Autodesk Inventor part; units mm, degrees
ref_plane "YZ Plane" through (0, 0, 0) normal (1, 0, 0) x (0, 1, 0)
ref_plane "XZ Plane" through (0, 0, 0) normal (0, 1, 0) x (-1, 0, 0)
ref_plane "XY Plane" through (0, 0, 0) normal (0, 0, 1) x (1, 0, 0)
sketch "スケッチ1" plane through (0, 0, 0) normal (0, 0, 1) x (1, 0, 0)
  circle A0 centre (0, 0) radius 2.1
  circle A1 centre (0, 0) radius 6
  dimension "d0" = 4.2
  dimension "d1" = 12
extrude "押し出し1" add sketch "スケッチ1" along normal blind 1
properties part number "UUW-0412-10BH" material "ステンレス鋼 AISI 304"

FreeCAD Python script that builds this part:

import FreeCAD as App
import Part
import Sketcher

doc = App.newDocument("Part")
params = doc.addObject("Spreadsheet::Sheet", "Params")
for row, (alias, value) in enumerate([
    ("sketch1_diameter", "12 mm"),
    ("sketch1_diameter2", "4.2 mm"),
    ("pad1_length", "1 mm"),
], start=1):
    params.set(f"A{row}", alias)
    params.set(f"B{row}", "=" + value)
    params.setAlias(f"B{row}", alias)

body = doc.addObject("PartDesign::Body", "Body")

sketch1 = doc.addObject("Sketcher::SketchObject", "Sketch")
body.addObject(sketch1)
sketch1.AttachmentSupport = (doc.XY_Plane, [""])
sketch1.MapMode = "FlatFace"
sketch1.addGeometry(Part.Circle(App.Vector(0, 0, 0), App.Vector(0, 0, 1), 6), False)
sketch1.addGeometry(Part.Circle(App.Vector(0, 0, 0), App.Vector(0, 0, 1), 2.1), False)
sketch1.addConstraint(Sketcher.Constraint("Coincident", 0, 3, -1, 1))
sketch1.addConstraint(Sketcher.Constraint("Coincident", 1, 3, -1, 1))
sketch1.addConstraint(Sketcher.Constraint("Diameter", 0, 12.0))
sketch1.addConstraint(Sketcher.Constraint("Diameter", 1, 4.2))
sketch1.setExpression("Constraints[2]", "Params.sketch1_diameter")
sketch1.setExpression("Constraints[3]", "Params.sketch1_diameter2")
pad1 = doc.addObject("PartDesign::Pad", "Pad")
body.addObject(pad1)
pad1.Profile = sketch1
pad1.setExpression("Length", "Params.pad1_length")

doc.recompute()
